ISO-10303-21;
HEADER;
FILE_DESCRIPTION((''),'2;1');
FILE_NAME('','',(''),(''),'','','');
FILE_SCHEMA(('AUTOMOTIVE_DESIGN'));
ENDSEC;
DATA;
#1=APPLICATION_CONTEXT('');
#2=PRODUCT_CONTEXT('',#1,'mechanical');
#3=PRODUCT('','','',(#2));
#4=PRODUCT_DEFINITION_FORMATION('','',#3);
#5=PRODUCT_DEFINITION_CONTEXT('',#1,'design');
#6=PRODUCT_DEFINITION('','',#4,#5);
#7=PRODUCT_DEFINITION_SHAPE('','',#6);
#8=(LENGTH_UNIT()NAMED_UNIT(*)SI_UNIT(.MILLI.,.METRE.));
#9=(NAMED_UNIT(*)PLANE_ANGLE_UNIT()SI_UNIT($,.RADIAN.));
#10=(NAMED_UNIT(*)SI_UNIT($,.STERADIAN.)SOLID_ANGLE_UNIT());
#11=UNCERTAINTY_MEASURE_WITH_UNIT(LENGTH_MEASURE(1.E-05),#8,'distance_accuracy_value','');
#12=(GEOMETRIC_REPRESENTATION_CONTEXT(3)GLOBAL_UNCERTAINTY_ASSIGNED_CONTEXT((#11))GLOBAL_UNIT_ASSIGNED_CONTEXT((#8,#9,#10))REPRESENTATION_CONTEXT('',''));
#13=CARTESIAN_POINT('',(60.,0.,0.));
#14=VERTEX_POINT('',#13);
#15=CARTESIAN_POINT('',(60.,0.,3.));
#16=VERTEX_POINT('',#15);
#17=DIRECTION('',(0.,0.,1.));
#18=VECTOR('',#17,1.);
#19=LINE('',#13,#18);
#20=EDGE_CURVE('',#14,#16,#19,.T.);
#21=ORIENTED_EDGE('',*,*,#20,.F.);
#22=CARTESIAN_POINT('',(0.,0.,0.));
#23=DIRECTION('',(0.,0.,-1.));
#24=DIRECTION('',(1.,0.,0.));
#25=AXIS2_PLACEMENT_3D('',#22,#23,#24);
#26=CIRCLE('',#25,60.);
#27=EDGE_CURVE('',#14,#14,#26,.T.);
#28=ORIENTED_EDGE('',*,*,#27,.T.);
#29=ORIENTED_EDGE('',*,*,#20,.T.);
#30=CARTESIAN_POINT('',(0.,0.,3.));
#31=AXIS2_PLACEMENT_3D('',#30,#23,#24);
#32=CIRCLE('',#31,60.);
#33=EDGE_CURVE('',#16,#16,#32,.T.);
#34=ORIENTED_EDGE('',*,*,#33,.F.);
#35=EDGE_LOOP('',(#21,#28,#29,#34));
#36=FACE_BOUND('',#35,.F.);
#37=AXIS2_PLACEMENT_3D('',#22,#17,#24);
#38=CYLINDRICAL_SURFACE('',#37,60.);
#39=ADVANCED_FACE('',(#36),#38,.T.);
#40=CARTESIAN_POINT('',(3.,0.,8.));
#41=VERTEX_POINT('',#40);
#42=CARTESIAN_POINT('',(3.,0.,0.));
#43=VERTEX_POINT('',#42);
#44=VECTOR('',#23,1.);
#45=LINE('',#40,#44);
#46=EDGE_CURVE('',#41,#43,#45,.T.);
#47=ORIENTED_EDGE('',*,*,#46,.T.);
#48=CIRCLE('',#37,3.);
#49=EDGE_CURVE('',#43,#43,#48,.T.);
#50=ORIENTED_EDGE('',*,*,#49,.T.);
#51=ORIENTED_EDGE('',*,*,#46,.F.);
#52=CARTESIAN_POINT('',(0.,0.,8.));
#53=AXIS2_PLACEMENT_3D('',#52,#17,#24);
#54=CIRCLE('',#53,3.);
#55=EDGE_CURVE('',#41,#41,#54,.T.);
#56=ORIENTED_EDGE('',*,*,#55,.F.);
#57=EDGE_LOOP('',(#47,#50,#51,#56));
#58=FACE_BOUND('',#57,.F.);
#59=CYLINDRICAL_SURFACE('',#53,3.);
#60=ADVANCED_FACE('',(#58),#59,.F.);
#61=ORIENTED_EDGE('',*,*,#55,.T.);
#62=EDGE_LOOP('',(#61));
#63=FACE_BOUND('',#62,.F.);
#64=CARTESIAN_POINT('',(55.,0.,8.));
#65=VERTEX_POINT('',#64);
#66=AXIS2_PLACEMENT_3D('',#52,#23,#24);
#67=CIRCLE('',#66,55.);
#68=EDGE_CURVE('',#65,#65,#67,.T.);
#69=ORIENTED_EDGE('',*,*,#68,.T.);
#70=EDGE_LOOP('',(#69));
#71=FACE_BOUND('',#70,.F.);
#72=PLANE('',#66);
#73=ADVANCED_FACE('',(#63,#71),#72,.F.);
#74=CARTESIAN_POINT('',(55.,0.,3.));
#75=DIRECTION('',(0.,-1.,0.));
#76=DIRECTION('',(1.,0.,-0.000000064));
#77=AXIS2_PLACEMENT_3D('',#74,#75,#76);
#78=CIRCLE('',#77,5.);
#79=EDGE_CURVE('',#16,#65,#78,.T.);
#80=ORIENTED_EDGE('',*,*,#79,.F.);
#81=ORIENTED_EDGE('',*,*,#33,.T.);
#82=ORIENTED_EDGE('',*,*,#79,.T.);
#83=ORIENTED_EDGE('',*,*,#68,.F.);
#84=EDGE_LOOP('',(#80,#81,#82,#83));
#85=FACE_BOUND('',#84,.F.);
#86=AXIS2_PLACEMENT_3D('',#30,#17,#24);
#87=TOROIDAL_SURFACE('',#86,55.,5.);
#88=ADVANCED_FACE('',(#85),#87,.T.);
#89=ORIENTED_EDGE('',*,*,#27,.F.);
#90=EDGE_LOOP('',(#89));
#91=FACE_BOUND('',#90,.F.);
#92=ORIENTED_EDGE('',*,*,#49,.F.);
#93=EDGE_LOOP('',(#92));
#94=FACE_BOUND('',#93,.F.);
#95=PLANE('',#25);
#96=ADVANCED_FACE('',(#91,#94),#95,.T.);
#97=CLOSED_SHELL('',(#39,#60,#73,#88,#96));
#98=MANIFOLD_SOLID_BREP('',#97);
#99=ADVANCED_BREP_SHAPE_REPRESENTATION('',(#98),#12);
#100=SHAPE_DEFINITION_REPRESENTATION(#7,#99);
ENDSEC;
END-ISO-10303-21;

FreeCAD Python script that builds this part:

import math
import FreeCAD as App
import Part
import Sketcher

V = App.Vector
Q = App.Units.Quantity

doc = App.newDocument("Part")
params = doc.addObject("Spreadsheet::Sheet", "Params")
for row, (alias, value) in enumerate([
    ("sketch1_radius", "5 mm"),
    ("sketch1_width", "55 mm"),
    ("sketch1_height", "8 mm"),
    ("revolution_angle", "360 deg"),
    ("sketch2_diameter", "6 mm"),
    ("pocket1_length", "25 mm"),
], start=1):
    params.set(f"A{row}", alias)
    params.set(f"B{row}", "=" + value)
    params.setAlias(f"B{row}", alias)

body = doc.addObject("PartDesign::Body", "Body")

# Sketch on XZ plane
sketch1 = body.newObject("Sketcher::SketchObject", "Sketch")
sketch1.AttachmentSupport = (doc.getObject("XZ_Plane"), [""])
sketch1.MapMode = "FlatFace"
sketch1.addGeometry(Part.ArcOfCircle(Part.Circle(V(55, 3, 0), V(0, 0, 1), 5), math.radians(0), math.radians(90)), False)
sketch1.addGeometry(Part.LineSegment(V(55, 8, 0), V(0, 8, 0)), False)
sketch1.addGeometry(Part.LineSegment(V(0, 8, 0), V(0, 0, 0)), False)
sketch1.addGeometry(Part.LineSegment(V(0, 0, 0), V(60, 0, 0)), False)
sketch1.addGeometry(Part.LineSegment(V(60, 0, 0), V(60, 3, 0)), False)
sketch1.addConstraint(Sketcher.Constraint("Tangent", 0, 2, 1, 1))
sketch1.addConstraint(Sketcher.Constraint("Coincident", 1, 2, 2, 1))
sketch1.addConstraint(Sketcher.Constraint("Coincident", 2, 2, 3, 1))
sketch1.addConstraint(Sketcher.Constraint("Coincident", 3, 2, 4, 1))
sketch1.addConstraint(Sketcher.Constraint("Tangent", 4, 2, 0, 1))
sketch1.addConstraint(Sketcher.Constraint("Horizontal", 1))
sketch1.addConstraint(Sketcher.Constraint("Vertical", 2))
sketch1.addConstraint(Sketcher.Constraint("Horizontal", 3))
sketch1.addConstraint(Sketcher.Constraint("Vertical", 4))
sketch1.addConstraint(Sketcher.Constraint("Coincident", 2, 2, -1, 1))
sketch1.addConstraint(Sketcher.Constraint("Radius", 0, Q("5 mm")))
sketch1.addConstraint(Sketcher.Constraint("DistanceX", 1, 2, 1, 1, Q("55 mm")))
sketch1.addConstraint(Sketcher.Constraint("DistanceY", 2, 2, 2, 1, Q("8 mm")))
sketch1.setExpression("Constraints[10]", "Params.sketch1_radius")
sketch1.setExpression("Constraints[11]", "Params.sketch1_width")
sketch1.setExpression("Constraints[12]", "Params.sketch1_height")
revolution = body.newObject("PartDesign::Revolution", "Revolution")
revolution.Profile = sketch1
revolution.ReferenceAxis = (sketch1, ["V_Axis"])
revolution.setExpression("Angle", "Params.revolution_angle")

# Sketch on XY plane
sketch2 = body.newObject("Sketcher::SketchObject", "Sketch001")
sketch2.AttachmentSupport = (doc.getObject("XY_Plane"), [""])
sketch2.MapMode = "FlatFace"
sketch2.AttachmentOffset = App.Placement(V(0, 0, 8), App.Rotation())
sketch2.addGeometry(Part.Circle(V(0, 0, 0), V(0, 0, 1), 3), False)
sketch2.addConstraint(Sketcher.Constraint("Coincident", 0, 3, -1, 1))
sketch2.addConstraint(Sketcher.Constraint("Diameter", 0, Q("6 mm")))
sketch2.setExpression("Constraints[1]", "Params.sketch2_diameter")
pocket1 = body.newObject("PartDesign::Pocket", "Pocket")
pocket1.Profile = sketch2
pocket1.setExpression("Length", "Params.pocket1_length")

doc.recompute()
